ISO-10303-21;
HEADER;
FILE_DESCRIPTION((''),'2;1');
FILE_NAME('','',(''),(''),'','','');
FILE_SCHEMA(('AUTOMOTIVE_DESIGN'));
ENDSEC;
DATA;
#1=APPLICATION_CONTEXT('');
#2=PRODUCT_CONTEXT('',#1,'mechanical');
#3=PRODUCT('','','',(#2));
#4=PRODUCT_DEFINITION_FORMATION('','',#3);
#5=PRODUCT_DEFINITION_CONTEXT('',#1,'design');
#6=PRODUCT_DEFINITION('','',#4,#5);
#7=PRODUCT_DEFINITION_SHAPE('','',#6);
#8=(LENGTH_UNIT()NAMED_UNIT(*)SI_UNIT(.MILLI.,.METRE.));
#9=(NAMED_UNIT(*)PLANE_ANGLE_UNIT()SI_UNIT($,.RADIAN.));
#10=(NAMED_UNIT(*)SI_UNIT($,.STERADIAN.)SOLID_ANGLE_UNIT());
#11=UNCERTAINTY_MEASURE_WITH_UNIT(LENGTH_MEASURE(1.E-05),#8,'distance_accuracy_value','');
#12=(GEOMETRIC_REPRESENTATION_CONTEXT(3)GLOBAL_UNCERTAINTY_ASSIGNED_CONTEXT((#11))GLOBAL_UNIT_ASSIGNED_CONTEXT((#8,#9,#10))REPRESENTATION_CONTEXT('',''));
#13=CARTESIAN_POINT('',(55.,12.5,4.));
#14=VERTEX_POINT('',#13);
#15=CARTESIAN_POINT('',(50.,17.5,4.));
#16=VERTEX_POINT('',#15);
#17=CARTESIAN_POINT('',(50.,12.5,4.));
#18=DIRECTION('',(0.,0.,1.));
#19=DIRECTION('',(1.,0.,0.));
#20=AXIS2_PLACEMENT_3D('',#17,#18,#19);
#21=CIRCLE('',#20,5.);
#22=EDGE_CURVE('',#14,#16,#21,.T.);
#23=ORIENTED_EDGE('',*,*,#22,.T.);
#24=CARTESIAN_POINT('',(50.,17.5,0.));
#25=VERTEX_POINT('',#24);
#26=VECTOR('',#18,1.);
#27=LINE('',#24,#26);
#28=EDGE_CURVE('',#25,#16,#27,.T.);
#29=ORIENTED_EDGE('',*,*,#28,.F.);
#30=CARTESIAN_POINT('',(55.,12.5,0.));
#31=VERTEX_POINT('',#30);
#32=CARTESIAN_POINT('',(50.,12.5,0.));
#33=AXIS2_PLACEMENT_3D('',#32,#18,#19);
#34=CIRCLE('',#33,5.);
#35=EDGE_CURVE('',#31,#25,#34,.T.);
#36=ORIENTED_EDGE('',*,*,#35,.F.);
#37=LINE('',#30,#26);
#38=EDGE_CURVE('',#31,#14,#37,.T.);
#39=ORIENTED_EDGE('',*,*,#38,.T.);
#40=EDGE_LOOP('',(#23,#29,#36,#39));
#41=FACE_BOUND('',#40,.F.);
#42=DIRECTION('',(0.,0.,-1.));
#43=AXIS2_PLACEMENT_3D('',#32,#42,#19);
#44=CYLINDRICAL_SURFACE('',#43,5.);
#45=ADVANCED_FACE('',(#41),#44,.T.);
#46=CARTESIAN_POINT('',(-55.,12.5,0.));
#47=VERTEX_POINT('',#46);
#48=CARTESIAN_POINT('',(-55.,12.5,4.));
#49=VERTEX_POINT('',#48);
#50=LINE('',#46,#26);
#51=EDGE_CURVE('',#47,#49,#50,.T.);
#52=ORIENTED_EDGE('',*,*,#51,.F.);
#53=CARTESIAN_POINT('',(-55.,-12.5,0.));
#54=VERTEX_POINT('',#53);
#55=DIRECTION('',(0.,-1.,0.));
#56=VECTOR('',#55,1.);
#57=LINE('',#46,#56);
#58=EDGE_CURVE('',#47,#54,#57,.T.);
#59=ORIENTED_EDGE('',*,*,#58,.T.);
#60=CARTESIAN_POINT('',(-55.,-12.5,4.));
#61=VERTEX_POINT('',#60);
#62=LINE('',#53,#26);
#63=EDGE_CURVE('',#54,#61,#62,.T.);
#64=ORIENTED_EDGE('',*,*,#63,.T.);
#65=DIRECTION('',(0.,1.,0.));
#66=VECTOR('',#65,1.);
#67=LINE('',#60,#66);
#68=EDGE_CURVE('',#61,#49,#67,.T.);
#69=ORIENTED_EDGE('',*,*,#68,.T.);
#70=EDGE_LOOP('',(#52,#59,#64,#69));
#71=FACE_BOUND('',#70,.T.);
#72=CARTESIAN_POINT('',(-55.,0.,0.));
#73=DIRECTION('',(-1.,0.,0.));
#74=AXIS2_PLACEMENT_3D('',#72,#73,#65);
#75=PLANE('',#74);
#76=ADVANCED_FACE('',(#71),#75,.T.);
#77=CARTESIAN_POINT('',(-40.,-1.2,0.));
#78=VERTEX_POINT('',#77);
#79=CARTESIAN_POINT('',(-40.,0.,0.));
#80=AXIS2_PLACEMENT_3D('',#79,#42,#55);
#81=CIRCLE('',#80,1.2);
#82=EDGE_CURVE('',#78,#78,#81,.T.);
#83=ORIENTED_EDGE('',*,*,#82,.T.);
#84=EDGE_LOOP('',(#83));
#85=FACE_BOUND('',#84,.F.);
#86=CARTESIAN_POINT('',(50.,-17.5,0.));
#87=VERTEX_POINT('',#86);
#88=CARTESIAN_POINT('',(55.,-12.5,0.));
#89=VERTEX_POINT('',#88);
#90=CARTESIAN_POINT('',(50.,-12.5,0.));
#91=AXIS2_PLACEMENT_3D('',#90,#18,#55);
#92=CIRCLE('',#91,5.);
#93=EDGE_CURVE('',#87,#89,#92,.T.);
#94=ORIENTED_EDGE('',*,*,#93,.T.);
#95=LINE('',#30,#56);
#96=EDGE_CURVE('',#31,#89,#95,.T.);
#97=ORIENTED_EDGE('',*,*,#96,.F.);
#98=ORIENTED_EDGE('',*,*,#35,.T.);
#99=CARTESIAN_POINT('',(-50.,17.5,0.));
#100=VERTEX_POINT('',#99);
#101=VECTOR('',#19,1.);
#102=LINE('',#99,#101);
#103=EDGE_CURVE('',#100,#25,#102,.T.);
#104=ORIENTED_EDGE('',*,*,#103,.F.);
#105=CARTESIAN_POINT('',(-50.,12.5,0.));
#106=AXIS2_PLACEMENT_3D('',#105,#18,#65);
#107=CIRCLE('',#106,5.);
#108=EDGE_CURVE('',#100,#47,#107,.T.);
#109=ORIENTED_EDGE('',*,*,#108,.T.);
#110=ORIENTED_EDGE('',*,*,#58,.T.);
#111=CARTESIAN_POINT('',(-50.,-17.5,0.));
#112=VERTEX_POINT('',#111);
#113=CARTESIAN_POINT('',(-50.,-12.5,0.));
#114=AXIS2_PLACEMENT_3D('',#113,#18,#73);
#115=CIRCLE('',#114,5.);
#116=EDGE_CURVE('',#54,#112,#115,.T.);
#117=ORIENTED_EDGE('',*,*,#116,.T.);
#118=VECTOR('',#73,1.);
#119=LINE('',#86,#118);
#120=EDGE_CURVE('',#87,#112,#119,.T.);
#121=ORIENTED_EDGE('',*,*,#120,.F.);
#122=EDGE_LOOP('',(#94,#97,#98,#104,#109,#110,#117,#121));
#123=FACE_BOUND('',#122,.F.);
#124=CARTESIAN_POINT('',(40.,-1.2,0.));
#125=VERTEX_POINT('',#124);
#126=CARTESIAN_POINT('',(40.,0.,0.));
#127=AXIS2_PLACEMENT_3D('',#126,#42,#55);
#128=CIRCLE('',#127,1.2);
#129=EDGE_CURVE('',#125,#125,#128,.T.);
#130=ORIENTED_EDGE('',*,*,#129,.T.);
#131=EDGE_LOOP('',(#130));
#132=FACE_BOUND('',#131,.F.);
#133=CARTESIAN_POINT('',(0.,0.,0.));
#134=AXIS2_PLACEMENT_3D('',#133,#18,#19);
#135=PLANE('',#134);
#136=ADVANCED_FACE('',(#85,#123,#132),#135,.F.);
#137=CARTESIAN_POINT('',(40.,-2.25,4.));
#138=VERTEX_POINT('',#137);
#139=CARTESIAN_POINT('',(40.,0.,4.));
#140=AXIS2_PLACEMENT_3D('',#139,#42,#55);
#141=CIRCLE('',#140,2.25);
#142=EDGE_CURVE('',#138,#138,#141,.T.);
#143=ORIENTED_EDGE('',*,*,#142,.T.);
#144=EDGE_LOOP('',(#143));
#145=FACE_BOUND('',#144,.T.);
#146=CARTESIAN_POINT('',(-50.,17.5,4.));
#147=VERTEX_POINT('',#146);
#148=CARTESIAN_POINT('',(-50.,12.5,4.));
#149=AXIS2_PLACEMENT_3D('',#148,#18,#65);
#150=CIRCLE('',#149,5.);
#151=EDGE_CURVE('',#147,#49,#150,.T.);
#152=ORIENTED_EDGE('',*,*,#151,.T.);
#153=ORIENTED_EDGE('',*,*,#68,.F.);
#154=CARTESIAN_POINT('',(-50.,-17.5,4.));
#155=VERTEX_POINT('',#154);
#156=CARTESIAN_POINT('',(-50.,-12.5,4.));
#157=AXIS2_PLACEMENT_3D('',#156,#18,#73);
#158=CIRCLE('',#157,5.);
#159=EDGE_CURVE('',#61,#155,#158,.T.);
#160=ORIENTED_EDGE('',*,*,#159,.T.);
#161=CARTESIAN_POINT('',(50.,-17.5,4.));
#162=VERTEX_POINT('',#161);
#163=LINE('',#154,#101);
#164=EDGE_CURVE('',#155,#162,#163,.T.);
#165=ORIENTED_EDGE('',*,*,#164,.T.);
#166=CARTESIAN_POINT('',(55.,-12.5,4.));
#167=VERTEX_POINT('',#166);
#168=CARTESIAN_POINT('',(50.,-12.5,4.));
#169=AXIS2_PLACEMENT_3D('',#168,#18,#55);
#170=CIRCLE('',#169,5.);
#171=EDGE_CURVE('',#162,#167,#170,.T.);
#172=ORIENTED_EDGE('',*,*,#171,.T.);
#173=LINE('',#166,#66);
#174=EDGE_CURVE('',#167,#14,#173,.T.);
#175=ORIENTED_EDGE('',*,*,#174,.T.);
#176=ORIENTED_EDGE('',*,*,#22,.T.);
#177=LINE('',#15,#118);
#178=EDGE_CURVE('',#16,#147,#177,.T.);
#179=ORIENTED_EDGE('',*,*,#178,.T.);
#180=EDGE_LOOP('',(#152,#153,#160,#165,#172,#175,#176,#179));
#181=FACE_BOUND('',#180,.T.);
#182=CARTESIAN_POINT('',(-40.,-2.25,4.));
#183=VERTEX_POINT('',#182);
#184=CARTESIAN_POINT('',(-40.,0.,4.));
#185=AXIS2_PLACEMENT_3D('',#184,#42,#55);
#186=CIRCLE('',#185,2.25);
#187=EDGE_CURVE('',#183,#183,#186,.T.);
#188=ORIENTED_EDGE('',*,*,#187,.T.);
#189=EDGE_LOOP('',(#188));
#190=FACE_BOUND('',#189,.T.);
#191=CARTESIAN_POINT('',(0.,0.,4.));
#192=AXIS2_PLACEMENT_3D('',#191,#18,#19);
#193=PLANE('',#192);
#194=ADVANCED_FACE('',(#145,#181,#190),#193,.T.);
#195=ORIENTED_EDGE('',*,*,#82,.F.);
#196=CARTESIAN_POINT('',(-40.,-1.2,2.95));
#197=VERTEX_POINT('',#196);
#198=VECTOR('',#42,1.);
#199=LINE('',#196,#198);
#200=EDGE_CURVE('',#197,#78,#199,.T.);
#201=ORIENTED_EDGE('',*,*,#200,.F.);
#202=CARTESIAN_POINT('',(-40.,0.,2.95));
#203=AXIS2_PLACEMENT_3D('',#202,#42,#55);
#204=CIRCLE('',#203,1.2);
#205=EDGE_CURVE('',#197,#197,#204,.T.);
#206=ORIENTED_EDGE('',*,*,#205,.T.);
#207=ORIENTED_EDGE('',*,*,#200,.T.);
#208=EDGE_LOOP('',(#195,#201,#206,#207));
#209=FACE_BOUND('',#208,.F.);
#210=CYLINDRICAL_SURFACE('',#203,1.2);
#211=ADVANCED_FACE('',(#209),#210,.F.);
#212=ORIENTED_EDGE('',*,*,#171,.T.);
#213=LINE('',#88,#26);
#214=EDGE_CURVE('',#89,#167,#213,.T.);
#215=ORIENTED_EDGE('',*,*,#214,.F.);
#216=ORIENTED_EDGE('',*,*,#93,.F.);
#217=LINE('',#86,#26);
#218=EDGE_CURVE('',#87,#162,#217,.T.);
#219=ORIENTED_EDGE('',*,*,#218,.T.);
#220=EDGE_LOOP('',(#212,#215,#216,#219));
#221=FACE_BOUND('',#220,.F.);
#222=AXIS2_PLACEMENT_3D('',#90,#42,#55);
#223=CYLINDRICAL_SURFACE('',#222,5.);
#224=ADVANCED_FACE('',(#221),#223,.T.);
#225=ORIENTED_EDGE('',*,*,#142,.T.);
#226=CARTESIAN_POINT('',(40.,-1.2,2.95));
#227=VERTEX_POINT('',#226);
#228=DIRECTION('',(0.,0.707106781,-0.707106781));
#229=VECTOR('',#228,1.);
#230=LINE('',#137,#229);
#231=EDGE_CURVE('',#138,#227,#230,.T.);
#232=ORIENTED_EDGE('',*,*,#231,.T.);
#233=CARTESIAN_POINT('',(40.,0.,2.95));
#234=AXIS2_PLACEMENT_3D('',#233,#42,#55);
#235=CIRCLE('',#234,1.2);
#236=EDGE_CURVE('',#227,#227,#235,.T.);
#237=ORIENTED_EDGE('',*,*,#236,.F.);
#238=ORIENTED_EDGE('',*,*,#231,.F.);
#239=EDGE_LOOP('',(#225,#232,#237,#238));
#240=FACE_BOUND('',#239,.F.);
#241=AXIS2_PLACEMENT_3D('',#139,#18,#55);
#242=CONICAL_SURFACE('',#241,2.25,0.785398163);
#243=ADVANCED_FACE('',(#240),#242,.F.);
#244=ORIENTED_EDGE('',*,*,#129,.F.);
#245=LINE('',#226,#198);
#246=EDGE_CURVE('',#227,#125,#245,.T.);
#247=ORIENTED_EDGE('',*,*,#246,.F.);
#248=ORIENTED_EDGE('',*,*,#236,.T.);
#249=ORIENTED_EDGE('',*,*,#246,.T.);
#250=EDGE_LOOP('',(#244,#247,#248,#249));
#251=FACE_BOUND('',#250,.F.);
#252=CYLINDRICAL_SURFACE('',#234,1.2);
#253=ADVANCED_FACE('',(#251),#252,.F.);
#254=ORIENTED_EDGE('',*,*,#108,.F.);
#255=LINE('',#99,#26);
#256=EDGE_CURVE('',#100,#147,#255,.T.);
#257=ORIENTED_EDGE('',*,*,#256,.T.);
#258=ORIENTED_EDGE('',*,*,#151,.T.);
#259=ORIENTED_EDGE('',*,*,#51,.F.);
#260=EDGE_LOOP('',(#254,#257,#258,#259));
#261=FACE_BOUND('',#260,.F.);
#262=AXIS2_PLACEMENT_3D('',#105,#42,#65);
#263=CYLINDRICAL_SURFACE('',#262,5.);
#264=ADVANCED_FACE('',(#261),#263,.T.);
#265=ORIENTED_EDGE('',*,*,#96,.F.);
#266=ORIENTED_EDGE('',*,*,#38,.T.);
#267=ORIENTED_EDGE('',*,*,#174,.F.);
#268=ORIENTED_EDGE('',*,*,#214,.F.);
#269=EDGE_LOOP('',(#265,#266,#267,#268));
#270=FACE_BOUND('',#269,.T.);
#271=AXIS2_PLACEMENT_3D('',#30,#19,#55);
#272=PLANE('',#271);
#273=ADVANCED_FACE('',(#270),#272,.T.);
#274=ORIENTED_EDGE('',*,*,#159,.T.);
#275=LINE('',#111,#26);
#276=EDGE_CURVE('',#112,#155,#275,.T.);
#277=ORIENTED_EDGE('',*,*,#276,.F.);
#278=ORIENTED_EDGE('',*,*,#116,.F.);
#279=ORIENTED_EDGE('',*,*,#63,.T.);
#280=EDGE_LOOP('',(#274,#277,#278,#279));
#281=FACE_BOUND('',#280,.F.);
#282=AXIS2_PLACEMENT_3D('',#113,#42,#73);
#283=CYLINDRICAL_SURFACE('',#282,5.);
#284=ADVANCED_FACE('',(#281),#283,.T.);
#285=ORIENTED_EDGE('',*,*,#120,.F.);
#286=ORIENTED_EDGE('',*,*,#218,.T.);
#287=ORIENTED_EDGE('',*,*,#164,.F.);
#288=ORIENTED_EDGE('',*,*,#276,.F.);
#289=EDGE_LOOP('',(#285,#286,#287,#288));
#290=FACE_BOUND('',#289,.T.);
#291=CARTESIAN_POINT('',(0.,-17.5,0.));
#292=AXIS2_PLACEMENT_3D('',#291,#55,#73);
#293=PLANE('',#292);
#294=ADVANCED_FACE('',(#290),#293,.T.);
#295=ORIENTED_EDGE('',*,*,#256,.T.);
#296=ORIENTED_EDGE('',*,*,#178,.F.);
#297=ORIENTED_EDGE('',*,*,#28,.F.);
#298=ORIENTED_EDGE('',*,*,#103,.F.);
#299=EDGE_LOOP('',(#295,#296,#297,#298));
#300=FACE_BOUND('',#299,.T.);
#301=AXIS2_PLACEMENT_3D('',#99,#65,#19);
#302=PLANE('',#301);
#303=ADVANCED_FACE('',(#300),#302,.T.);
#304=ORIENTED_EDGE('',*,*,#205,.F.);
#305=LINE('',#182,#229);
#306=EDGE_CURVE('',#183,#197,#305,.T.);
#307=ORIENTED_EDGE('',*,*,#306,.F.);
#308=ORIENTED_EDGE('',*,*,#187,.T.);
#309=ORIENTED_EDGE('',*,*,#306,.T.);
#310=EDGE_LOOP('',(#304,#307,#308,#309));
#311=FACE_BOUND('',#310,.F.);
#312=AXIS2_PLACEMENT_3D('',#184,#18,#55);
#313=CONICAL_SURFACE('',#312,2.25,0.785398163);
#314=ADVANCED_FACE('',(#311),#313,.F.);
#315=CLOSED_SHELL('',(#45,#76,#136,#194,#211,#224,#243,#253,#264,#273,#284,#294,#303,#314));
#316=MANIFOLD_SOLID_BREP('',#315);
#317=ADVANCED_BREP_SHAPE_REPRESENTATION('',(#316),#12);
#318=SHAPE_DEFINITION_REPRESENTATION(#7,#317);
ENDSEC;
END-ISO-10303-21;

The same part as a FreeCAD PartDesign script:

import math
import FreeCAD as App
import Part
import Sketcher
from FreeCAD import Vector
Q = App.Units.Quantity

doc = App.newDocument("Part")
body = doc.addObject("PartDesign::Body", "Body")

sketch1 = doc.addObject("Sketcher::SketchObject", "Sketch")
body.addObject(sketch1)
sketch1.AttachmentSupport = (doc.XY_Plane, [""])
sketch1.MapMode = "FlatFace"
sketch1.addGeometry(Part.LineSegment(Vector(-55, 12, 0), Vector(-55, -12, 0)), False)
sketch1.addGeometry(Part.ArcOfCircle(Part.Circle(Vector(-50, -12, 0), Vector(0, 0, 1), 5), math.radians(180), math.radians(270)), False)
sketch1.addGeometry(Part.LineSegment(Vector(-50, -18, 0), Vector(50, -18, 0)), False)
sketch1.addGeometry(Part.ArcOfCircle(Part.Circle(Vector(50, -12, 0), Vector(0, 0, 1), 5), math.radians(-90), math.radians(0)), False)
sketch1.addGeometry(Part.LineSegment(Vector(55, -12, 0), Vector(55, 12, 0)), False)
sketch1.addGeometry(Part.ArcOfCircle(Part.Circle(Vector(50, 12, 0), Vector(0, 0, 1), 5), math.radians(0), math.radians(90)), False)
sketch1.addGeometry(Part.LineSegment(Vector(50, 18, 0), Vector(-50, 18, 0)), False)
sketch1.addGeometry(Part.ArcOfCircle(Part.Circle(Vector(-50, 12, 0), Vector(0, 0, 1), 5), math.radians(90), math.radians(180)), False)
sketch1.addConstraint(Sketcher.Constraint("Tangent", 0, 2, 1, 1))
sketch1.addConstraint(Sketcher.Constraint("Tangent", 1, 2, 2, 1))
sketch1.addConstraint(Sketcher.Constraint("Tangent", 2, 2, 3, 1))
sketch1.addConstraint(Sketcher.Constraint("Tangent", 3, 2, 4, 1))
sketch1.addConstraint(Sketcher.Constraint("Tangent", 4, 2, 5, 1))
sketch1.addConstraint(Sketcher.Constraint("Tangent", 5, 2, 6, 1))
sketch1.addConstraint(Sketcher.Constraint("Tangent", 6, 2, 7, 1))
sketch1.addConstraint(Sketcher.Constraint("Tangent", 7, 2, 0, 1))
sketch1.addConstraint(Sketcher.Constraint("Vertical", 0))
sketch1.addConstraint(Sketcher.Constraint("Horizontal", 2))
sketch1.addConstraint(Sketcher.Constraint("Vertical", 4))
sketch1.addConstraint(Sketcher.Constraint("Horizontal", 6))
sketch1.addConstraint(Sketcher.Constraint("Equal", 1, 3))
sketch1.addConstraint(Sketcher.Constraint("Equal", 3, 5))
sketch1.addConstraint(Sketcher.Constraint("Equal", 5, 7))
sketch1.addConstraint(Sketcher.Constraint("Symmetric", 1, 3, 5, 3, -1, 1))
sketch1.addConstraint(Sketcher.Constraint("Radius", 1, Q("5 mm")))
sketch1.addConstraint(Sketcher.Constraint("DistanceY", 2, 2, 5, 2, Q("35 mm")))
sketch1.addConstraint(Sketcher.Constraint("DistanceX", 2, 1, 2, 2, Q("100 mm")))
pad1 = doc.addObject("PartDesign::Pad", "Pad")
body.addObject(pad1)
pad1.Profile = sketch1
pad1.Length = 4

sketch2 = doc.addObject("Sketcher::SketchObject", "Sketch001")
body.addObject(sketch2)
sketch2.AttachmentSupport = (doc.XY_Plane, [""])
sketch2.MapMode = "FlatFace"
sketch2.AttachmentOffset = App.Placement(Vector(0, 0, 4), App.Rotation())
sketch2.addGeometry(Part.Circle(Vector(-40, 0, 0), Vector(0, 0, 1), 1.2), False)
sketch2.addGeometry(Part.Circle(Vector(40, 0, 0), Vector(0, 0, 1), 1.2), False)
sketch2.addConstraint(Sketcher.Constraint("Equal", 0, 1))
sketch2.addConstraint(Sketcher.Constraint("Symmetric", 0, 3, 1, 3, -1, 1))
sketch2.addConstraint(Sketcher.Constraint("PointOnObject", 0, 3, -1))
sketch2.addConstraint(Sketcher.Constraint("Diameter", 0, Q("2.4 mm")))
sketch2.addConstraint(Sketcher.Constraint("DistanceX", 0, 3, -1, 1, Q("40 mm")))
doc.recompute()
hole = doc.addObject("PartDesign::Hole", "Hole")
body.addObject(hole)
hole.Profile = sketch2
hole.ThreadType = "None"
hole.Diameter = 2.4
hole.DepthType = "ThroughAll"
hole.HoleCutType = "Countersink"
hole.HoleCutDiameter = 4.5
hole.HoleCutCountersinkAngle = 90

doc.recompute()
